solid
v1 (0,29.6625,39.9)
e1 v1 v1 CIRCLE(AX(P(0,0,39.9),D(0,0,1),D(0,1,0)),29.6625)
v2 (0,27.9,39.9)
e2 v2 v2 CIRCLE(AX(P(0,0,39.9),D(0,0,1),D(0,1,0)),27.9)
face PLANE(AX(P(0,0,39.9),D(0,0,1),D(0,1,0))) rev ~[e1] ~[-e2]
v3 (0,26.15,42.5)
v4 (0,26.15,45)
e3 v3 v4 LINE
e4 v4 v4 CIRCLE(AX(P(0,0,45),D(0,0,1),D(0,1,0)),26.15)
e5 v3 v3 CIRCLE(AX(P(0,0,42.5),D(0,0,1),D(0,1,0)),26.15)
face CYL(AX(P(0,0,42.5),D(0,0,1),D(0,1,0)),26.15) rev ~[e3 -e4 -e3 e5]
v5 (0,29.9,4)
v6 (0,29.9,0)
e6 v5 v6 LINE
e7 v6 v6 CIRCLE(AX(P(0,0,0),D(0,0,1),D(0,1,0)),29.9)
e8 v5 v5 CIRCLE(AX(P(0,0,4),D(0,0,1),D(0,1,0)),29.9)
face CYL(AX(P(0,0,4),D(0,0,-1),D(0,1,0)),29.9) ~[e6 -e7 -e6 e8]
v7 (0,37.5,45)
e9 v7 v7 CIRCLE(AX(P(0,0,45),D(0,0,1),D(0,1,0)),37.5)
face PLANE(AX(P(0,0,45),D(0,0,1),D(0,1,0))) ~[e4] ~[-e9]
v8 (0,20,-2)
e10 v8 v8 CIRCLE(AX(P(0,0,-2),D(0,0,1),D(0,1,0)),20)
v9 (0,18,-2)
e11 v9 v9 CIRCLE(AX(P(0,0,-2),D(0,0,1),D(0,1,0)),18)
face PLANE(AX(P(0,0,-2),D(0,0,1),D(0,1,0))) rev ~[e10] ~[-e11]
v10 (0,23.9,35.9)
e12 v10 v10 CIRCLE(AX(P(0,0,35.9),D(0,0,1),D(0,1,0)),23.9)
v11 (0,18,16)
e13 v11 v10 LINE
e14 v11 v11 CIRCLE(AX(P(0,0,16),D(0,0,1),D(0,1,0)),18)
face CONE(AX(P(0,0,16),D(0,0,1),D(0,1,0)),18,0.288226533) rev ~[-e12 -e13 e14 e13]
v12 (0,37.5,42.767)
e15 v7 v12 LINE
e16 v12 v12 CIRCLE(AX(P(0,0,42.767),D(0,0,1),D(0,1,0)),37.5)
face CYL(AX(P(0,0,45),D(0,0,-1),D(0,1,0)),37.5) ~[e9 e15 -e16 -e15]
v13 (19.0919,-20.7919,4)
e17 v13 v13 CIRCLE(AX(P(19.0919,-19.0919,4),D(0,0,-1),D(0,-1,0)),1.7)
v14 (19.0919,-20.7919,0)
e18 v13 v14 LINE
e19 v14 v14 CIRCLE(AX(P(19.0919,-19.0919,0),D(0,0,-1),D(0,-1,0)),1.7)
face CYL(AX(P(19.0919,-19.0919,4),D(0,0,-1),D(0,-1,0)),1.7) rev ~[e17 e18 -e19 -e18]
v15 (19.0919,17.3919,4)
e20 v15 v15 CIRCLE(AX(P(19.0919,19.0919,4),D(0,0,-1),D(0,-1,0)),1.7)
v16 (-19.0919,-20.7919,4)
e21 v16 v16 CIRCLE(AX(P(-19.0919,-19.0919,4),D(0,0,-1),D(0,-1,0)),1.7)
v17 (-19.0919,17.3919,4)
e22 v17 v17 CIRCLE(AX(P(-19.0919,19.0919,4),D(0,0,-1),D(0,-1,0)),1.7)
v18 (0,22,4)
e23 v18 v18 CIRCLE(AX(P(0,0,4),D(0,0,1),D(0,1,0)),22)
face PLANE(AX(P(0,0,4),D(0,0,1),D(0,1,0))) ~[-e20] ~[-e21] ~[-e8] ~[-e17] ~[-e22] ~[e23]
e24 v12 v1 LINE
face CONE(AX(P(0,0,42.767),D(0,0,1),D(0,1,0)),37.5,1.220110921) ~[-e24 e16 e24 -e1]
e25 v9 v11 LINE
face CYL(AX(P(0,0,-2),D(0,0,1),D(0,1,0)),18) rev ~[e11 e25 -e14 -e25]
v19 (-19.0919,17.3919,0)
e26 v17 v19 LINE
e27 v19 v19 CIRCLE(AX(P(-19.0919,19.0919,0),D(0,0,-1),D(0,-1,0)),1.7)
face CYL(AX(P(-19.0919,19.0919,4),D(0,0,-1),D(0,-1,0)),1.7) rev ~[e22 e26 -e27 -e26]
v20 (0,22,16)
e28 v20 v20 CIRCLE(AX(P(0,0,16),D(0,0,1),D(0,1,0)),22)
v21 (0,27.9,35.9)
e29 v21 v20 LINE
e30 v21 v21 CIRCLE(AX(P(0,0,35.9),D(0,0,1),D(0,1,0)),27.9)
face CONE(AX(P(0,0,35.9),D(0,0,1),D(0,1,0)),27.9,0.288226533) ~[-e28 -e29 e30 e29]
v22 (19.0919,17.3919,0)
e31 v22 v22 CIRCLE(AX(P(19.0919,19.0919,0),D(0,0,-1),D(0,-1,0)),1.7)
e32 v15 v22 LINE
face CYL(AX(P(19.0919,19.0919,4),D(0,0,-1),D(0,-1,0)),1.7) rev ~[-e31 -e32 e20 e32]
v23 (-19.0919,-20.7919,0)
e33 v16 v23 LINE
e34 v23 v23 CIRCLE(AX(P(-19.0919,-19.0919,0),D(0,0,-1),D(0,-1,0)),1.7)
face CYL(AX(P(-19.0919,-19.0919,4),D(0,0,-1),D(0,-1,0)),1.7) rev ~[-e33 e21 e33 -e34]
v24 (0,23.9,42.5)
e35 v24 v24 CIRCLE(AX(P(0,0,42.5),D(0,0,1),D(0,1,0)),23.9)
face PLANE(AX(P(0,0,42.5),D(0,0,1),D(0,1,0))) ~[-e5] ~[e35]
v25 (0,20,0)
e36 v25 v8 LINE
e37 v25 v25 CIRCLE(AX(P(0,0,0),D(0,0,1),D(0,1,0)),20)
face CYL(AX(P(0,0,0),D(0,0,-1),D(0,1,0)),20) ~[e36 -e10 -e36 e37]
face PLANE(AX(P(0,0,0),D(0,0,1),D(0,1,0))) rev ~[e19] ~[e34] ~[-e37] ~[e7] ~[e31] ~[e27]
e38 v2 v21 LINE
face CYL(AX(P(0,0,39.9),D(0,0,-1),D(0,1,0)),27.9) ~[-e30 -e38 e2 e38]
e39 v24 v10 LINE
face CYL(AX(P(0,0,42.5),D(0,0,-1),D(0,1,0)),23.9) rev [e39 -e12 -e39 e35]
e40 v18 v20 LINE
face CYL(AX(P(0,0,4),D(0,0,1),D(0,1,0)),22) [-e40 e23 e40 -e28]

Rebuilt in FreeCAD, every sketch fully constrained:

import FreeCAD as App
import Part
import Sketcher
Q = App.Units.Quantity

doc = App.newDocument("Part")
body = doc.addObject("PartDesign::Body", "Body")

# Sketch on YZ plane
sketch1 = body.newObject("Sketcher::SketchObject", "Sketch")
sketch1.AttachmentSupport = (doc.getObject("YZ_Plane"), [""])
sketch1.MapMode = "FlatFace"
sketch1.addGeometry([
    Part.LineSegment(App.Vector(18, 16, 0), App.Vector(18, -2, 0)),  # 0
    Part.LineSegment(App.Vector(18, -2, 0), App.Vector(20, -2, 0)),  # 1
    Part.LineSegment(App.Vector(20, -2, 0), App.Vector(20, 0, 0)),  # 2
    Part.LineSegment(App.Vector(20, 0, 0), App.Vector(29.9, 0, 0)),  # 3
    Part.LineSegment(App.Vector(29.9, 0, 0), App.Vector(29.9, 4, 0)),  # 4
    Part.LineSegment(App.Vector(29.9, 4, 0), App.Vector(22, 4, 0)),  # 5
    Part.LineSegment(App.Vector(22, 4, 0), App.Vector(22, 16, 0)),  # 6
    Part.LineSegment(App.Vector(22, 16, 0), App.Vector(27.9, 35.9, 0)),  # 7
    Part.LineSegment(App.Vector(27.9, 35.9, 0), App.Vector(27.9, 39.9, 0)),  # 8
    Part.LineSegment(App.Vector(27.9, 39.9, 0), App.Vector(29.7, 39.9, 0)),  # 9
    Part.LineSegment(App.Vector(29.7, 39.9, 0), App.Vector(37.5, 42.8, 0)),  # 10
    Part.LineSegment(App.Vector(37.5, 42.8, 0), App.Vector(37.5, 45, 0)),  # 11
    Part.LineSegment(App.Vector(37.5, 45, 0), App.Vector(26.1, 45, 0)),  # 12
    Part.LineSegment(App.Vector(26.1, 45, 0), App.Vector(26.1, 42.5, 0)),  # 13
    Part.LineSegment(App.Vector(26.1, 42.5, 0), App.Vector(23.9, 42.5, 0)),  # 14
    Part.LineSegment(App.Vector(23.9, 42.5, 0), App.Vector(23.9, 35.9, 0)),  # 15
    Part.LineSegment(App.Vector(23.9, 35.9, 0), App.Vector(18, 16, 0)),  # 16
], False)
sketch1.addConstraint([
    Sketcher.Constraint("Coincident", 0, 2, 1, 1),
    Sketcher.Constraint("Coincident", 1, 2, 2, 1),
    Sketcher.Constraint("Coincident", 2, 2, 3, 1),
    Sketcher.Constraint("Coincident", 3, 2, 4, 1),
    Sketcher.Constraint("Coincident", 4, 2, 5, 1),
    Sketcher.Constraint("Coincident", 5, 2, 6, 1),
    Sketcher.Constraint("Coincident", 6, 2, 7, 1),
    Sketcher.Constraint("Coincident", 7, 2, 8, 1),
    Sketcher.Constraint("Coincident", 8, 2, 9, 1),
    Sketcher.Constraint("Coincident", 9, 2, 10, 1),
    Sketcher.Constraint("Coincident", 10, 2, 11, 1),
    Sketcher.Constraint("Coincident", 11, 2, 12, 1),
    Sketcher.Constraint("Coincident", 12, 2, 13, 1),
    Sketcher.Constraint("Coincident", 13, 2, 14, 1),
    Sketcher.Constraint("Coincident", 14, 2, 15, 1),
    Sketcher.Constraint("Coincident", 15, 2, 16, 1),
    Sketcher.Constraint("Coincident", 16, 2, 0, 1),
    Sketcher.Constraint("Vertical", 0),
    Sketcher.Constraint("Horizontal", 1),
    Sketcher.Constraint("Vertical", 2),
    Sketcher.Constraint("Horizontal", 3),
    Sketcher.Constraint("Vertical", 4),
    Sketcher.Constraint("Horizontal", 5),
    Sketcher.Constraint("Vertical", 6),
    Sketcher.Constraint("Vertical", 8),
    Sketcher.Constraint("Horizontal", 9),
    Sketcher.Constraint("Vertical", 11),
    Sketcher.Constraint("Horizontal", 12),
    Sketcher.Constraint("Vertical", 13),
    Sketcher.Constraint("Horizontal", 14),
    Sketcher.Constraint("Vertical", 15),
    Sketcher.Constraint("PointOnObject", 2, 2, -1),
    Sketcher.Constraint("Parallel", 7, 16),
    Sketcher.Constraint("Horizontal", 7, 2, 15, 2),
    Sketcher.Constraint("Horizontal", 6, 2, 16, 2),
    Sketcher.Constraint("Equal", 1, 2),
    Sketcher.Constraint("Equal", 4, 8),
    Sketcher.Constraint("DistanceX", 1, 1, 1, 2, Q("2 mm")),
    Sketcher.Constraint("DistanceY", 4, 1, 4, 2, Q("4 mm")),
    Sketcher.Constraint("DistanceY", 6, 1, 6, 2, Q("12 mm")),
    Sketcher.Constraint("DistanceY", 13, 2, 13, 1, Q("2.5 mm")),
    Sketcher.Constraint("DistanceY", -1, 1, 11, 2, Q("45 mm")),
    Sketcher.Constraint("DistanceX", 2, 2, 5, 2, Q("2 mm")),
    Sketcher.Constraint("DistanceX", 7, 2, 4, 2, Q("2 mm")),
    Sketcher.Constraint("DistanceY", 9, 2, 11, 2, Q("5.1 mm")),
    Sketcher.Constraint("DistanceY", 11, 1, 11, 2, Q("2.233 mm")),
    Sketcher.Constraint("DistanceX", 3, 1, 3, 2, Q("9.9 mm")),
    Sketcher.Constraint("DistanceX", -1, 1, 0, 2, Q("18 mm")),
    Sketcher.Constraint("DistanceX", 12, 2, 12, 1, Q("11.35 mm")),
    Sketcher.Constraint("DistanceX", 14, 2, 14, 1, Q("2.25 mm")),
    Sketcher.Constraint("DistanceX", 9, 1, 9, 2, Q("1.7625 mm")),
])
revolution = body.newObject("PartDesign::Revolution", "Revolution")
revolution.Profile = sketch1
revolution.ReferenceAxis = (sketch1, ["V_Axis"])
revolution.Angle = 360

# Sketch on XY plane
sketch2 = body.newObject("Sketcher::SketchObject", "Sketch001")
sketch2.AttachmentSupport = (doc.getObject("XY_Plane"), [""])
sketch2.MapMode = "FlatFace"
sketch2.AttachmentOffset = App.Placement(App.Vector(0, 0, 4), App.Rotation())
sketch2.addGeometry([
    Part.Circle(App.Vector(-19.1, 19.1, 0), App.Vector(0, 0, 1), 1.7),
    Part.Circle(App.Vector(19.1, 19.1, 0), App.Vector(0, 0, 1), 1.7),
    Part.Circle(App.Vector(-19.1, -19.1, 0), App.Vector(0, 0, 1), 1.7),
    Part.Circle(App.Vector(19.1, -19.1, 0), App.Vector(0, 0, 1), 1.7),
], False)
sketch2.addConstraint([
    Sketcher.Constraint("Equal", 0, 1),
    Sketcher.Constraint("Equal", 1, 2),
    Sketcher.Constraint("Equal", 2, 3),
    Sketcher.Constraint("Symmetric", 1, 3, 2, 3, -1, 1),
    Sketcher.Constraint("Symmetric", 0, 3, 3, 3, -1, 1),
    Sketcher.Constraint("Symmetric", 0, 3, 1, 3, -2),
    Sketcher.Constraint("Diameter", 0, Q("3.4 mm")),
    Sketcher.Constraint("DistanceX", 0, 3, -1, 1, Q("19.092 mm")),
    Sketcher.Constraint("DistanceY", -1, 1, 0, 3, Q("19.092 mm")),
])
doc.recompute()
hole = body.newObject("PartDesign::Hole", "Hole")
hole.Profile = sketch2
hole.ThreadType = "None"
hole.Diameter = 3.4
hole.DepthType = "ThroughAll"

doc.recompute()
